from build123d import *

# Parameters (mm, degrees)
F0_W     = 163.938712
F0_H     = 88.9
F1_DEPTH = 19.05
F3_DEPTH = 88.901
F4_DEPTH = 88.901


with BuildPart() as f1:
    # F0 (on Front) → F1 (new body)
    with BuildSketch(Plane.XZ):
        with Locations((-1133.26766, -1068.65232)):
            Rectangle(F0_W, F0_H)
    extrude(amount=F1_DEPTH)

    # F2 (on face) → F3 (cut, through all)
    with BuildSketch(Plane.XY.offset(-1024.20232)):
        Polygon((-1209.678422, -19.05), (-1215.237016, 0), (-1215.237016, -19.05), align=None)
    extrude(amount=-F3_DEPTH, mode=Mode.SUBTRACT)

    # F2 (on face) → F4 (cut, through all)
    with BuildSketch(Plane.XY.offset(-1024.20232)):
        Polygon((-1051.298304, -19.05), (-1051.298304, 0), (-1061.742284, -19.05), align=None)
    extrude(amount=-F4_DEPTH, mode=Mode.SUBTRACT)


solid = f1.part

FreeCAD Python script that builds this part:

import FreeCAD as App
import Part
import Sketcher

V = App.Vector
Q = App.Units.Quantity

doc = App.newDocument("Part")
body = doc.addObject("PartDesign::Body", "Body")

sketch1 = body.newObject("Sketcher::SketchObject", "Sketch")
sketch1.AttachmentSupport = (doc.getObject("XZ_Plane"), [""])
sketch1.MapMode = "FlatFace"
sketch1.addGeometry(Part.LineSegment(V(-1215, -1024, 0), V(-1215, -1113, 0)), False)
sketch1.addGeometry(Part.LineSegment(V(-1215, -1113, 0), V(-1051, -1113, 0)), False)
sketch1.addGeometry(Part.LineSegment(V(-1051, -1113, 0), V(-1051, -1024, 0)), False)
sketch1.addGeometry(Part.LineSegment(V(-1051, -1024, 0), V(-1215, -1024, 0)), False)
sketch1.addConstraint(Sketcher.Constraint("Coincident", 0, 2, 1, 1))
sketch1.addConstraint(Sketcher.Constraint("Coincident", 1, 2, 2, 1))
sketch1.addConstraint(Sketcher.Constraint("Coincident", 2, 2, 3, 1))
sketch1.addConstraint(Sketcher.Constraint("Coincident", 3, 2, 0, 1))
sketch1.addConstraint(Sketcher.Constraint("Vertical", 0))
sketch1.addConstraint(Sketcher.Constraint("Horizontal", 1))
sketch1.addConstraint(Sketcher.Constraint("Vertical", 2))
sketch1.addConstraint(Sketcher.Constraint("Horizontal", 3))
sketch1.addConstraint(Sketcher.Constraint("DistanceY", 0, 2, 0, 1, Q("3.5 in")))
sketch1.addConstraint(Sketcher.Constraint("DistanceX", 1, 1, 1, 2, 163.938712))
sketch1.addConstraint(Sketcher.Constraint("DistanceY", 0, 2, -1, 1, 1113.10232))
sketch1.addConstraint(Sketcher.Constraint("DistanceX", 0, 2, -1, 1, 1215.237016))
pad1 = body.newObject("PartDesign::Pad", "Pad")
pad1.Profile = sketch1
pad1.Length = Q("0.75 in")

sketch2 = body.newObject("Sketcher::SketchObject", "Sketch001")
sketch2.AttachmentSupport = (doc.getObject("XY_Plane"), [""])
sketch2.MapMode = "FlatFace"
sketch2.AttachmentOffset = App.Placement(V(0, 0, -1024.20232), App.Rotation())
sketch2.addGeometry(Part.LineSegment(V(-1209.678422, -19.05, 0), V(-1215.237016, 0, 0)), False)
sketch2.addGeometry(Part.LineSegment(V(-1215.237016, 0, 0), V(-1215.237016, -19.05, 0)), False)
sketch2.addGeometry(Part.LineSegment(V(-1215.237016, -19.05, 0), V(-1209.678422, -19.05, 0)), False)
sketch2.addConstraint(Sketcher.Constraint("Coincident", 0, 2, 1, 1))
sketch2.addConstraint(Sketcher.Constraint("Coincident", 1, 2, 2, 1))
sketch2.addConstraint(Sketcher.Constraint("Coincident", 2, 2, 0, 1))
sketch2.addConstraint(Sketcher.Constraint("Vertical", 1))
sketch2.addConstraint(Sketcher.Constraint("Horizontal", 2))
sketch2.addConstraint(Sketcher.Constraint("PointOnObject", 0, 2, -1))
sketch2.addConstraint(Sketcher.Constraint("DistanceY", 1, 2, 1, 1, Q("0.75 in")))
sketch2.addConstraint(Sketcher.Constraint("DistanceX", 2, 1, 2, 2, 5.558594))
sketch2.addConstraint(Sketcher.Constraint("DistanceX", 2, 2, -1, 1, 1209.678422))
pocket1 = body.newObject("PartDesign::Pocket", "Pocket")
pocket1.Profile = sketch2
pocket1.Type = "ThroughAll"

sketch3 = body.newObject("Sketcher::SketchObject", "Sketch002")
sketch3.AttachmentSupport = (doc.getObject("XY_Plane"), [""])
sketch3.MapMode = "FlatFace"
sketch3.AttachmentOffset = App.Placement(V(0, 0, -1024.20232), App.Rotation())
sketch3.addGeometry(Part.LineSegment(V(-1051, -19, 0), V(-1051, 0, 0)), False)
sketch3.addGeometry(Part.LineSegment(V(-1051, 0, 0), V(-1062, -19, 0)), False)
sketch3.addGeometry(Part.LineSegment(V(-1062, -19, 0), V(-1051, -19, 0)), False)
sketch3.addConstraint(Sketcher.Constraint("Coincident", 0, 2, 1, 1))
sketch3.addConstraint(Sketcher.Constraint("Coincident", 1, 2, 2, 1))
sketch3.addConstraint(Sketcher.Constraint("Coincident", 2, 2, 0, 1))
sketch3.addConstraint(Sketcher.Constraint("Vertical", 0))
sketch3.addConstraint(Sketcher.Constraint("Horizontal", 2))
sketch3.addConstraint(Sketcher.Constraint("PointOnObject", 0, 2, -1))
sketch3.addConstraint(Sketcher.Constraint("DistanceY", 0, 1, 0, 2, Q("0.75 in")))
sketch3.addConstraint(Sketcher.Constraint("DistanceX", 2, 1, 2, 2, 10.44398))
sketch3.addConstraint(Sketcher.Constraint("DistanceX", 0, 2, -1, 1, 1051.298304))
pocket2 = body.newObject("PartDesign::Pocket", "Pocket001")
pocket2.Profile = sketch3
pocket2.Type = "ThroughAll"

doc.recompute()
